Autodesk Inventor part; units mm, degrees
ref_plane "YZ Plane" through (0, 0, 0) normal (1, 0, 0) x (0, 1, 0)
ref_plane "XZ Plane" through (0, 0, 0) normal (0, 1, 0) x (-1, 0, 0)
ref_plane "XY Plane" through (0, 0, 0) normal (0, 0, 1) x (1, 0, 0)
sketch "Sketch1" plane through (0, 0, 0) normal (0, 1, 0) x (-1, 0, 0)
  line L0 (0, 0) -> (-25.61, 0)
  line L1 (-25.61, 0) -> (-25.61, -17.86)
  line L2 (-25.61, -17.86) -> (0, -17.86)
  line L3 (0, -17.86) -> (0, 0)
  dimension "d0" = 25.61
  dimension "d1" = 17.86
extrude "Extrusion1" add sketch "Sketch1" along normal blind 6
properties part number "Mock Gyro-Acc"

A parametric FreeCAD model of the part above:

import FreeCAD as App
import Part
import Sketcher


def add_polygon(sketch, points):
    """Adds a closed chain of lines whose ends are joined by coincident constraints."""
    first, n = sketch.GeometryCount, len(points)
    for a, b in zip(points, points[1:] + points[:1]):
        sketch.addGeometry(Part.LineSegment(App.Vector(*a, 0), App.Vector(*b, 0)), False)
    for i in range(n):
        sketch.addConstraint(Sketcher.Constraint("Coincident", first + i, 2, first + (i + 1) % n, 1))

doc = App.newDocument("Part")
body = doc.addObject("PartDesign::Body", "Body")

# Sketch on XZ plane
sketch1 = doc.addObject("Sketcher::SketchObject", "Sketch")
body.addObject(sketch1)
sketch1.AttachmentSupport = (doc.XZ_Plane, [""])
sketch1.MapMode = "FlatFace"
add_polygon(sketch1, [(0, -18), (0, 0), (26, 0), (26, -18)])  # lines 0-3
sketch1.addConstraint([
    Sketcher.Constraint("Vertical", 0),
    Sketcher.Constraint("Horizontal", 1),
    Sketcher.Constraint("Vertical", 2),
    Sketcher.Constraint("Horizontal", 3),
    Sketcher.Constraint("Coincident", 0, 2, -1, 1),
    Sketcher.Constraint("DistanceX", 1, 1, 1, 2, 25.61),
    Sketcher.Constraint("DistanceY", 0, 1, 0, 2, 17.86),
])
pad1 = doc.addObject("PartDesign::Pad", "Pad")
body.addObject(pad1)
pad1.Profile = sketch1
pad1.Length = 6
pad1.Reversed = True

doc.recompute()
